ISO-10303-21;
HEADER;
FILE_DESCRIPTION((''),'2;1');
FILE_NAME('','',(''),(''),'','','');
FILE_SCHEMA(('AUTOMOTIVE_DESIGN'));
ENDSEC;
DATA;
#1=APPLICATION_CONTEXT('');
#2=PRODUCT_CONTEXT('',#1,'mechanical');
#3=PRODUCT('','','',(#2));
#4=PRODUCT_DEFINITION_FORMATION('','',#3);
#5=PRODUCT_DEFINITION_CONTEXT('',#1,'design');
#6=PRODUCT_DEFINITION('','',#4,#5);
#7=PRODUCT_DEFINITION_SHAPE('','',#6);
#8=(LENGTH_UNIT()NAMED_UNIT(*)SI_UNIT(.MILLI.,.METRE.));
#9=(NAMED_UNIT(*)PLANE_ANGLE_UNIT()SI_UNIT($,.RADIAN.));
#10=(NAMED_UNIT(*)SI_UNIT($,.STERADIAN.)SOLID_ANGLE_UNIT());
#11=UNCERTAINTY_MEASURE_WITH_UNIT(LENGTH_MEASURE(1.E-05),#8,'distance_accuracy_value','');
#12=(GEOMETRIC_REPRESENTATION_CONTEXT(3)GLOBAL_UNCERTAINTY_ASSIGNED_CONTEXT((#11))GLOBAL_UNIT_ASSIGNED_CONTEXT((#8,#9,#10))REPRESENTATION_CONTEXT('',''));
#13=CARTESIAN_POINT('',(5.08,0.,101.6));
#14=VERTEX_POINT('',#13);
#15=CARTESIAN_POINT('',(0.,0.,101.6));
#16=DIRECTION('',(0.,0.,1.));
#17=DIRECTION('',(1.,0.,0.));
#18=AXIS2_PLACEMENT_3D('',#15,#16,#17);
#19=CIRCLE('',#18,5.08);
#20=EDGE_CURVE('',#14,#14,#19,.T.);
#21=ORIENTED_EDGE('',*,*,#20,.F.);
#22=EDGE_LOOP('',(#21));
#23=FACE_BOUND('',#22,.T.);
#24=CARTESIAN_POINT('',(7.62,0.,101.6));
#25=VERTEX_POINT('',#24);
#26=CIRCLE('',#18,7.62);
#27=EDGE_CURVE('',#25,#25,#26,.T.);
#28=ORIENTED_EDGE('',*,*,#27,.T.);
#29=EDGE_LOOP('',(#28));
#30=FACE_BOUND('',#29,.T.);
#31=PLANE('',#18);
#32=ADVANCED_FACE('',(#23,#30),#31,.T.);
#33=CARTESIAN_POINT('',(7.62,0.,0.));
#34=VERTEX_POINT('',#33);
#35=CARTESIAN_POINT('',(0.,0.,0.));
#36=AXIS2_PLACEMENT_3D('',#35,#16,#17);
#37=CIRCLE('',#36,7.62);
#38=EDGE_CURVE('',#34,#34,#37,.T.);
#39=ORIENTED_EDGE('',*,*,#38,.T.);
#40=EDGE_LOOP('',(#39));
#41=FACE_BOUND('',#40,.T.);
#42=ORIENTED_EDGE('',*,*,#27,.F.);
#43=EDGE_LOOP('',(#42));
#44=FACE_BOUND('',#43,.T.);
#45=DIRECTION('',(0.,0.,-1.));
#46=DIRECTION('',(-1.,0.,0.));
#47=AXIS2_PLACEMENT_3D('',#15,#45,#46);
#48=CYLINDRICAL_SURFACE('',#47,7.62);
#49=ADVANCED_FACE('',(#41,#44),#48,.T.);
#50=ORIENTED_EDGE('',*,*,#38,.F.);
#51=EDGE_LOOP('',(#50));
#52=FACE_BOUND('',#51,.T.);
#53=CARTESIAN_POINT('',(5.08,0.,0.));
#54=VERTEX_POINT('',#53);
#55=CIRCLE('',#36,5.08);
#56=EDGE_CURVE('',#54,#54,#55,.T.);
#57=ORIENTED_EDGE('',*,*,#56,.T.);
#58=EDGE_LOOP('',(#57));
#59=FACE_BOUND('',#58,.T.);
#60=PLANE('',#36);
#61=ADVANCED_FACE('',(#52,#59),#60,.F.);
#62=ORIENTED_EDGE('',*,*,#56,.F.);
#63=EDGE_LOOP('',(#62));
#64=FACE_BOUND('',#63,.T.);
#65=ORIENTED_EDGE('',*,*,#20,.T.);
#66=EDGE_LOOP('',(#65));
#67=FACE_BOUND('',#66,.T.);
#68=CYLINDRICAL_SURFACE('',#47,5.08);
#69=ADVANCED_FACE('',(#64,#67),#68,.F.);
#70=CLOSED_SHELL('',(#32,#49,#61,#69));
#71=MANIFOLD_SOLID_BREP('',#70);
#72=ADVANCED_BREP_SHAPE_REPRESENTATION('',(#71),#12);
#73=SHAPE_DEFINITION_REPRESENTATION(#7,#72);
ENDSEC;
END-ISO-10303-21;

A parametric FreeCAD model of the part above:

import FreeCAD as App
import Part
import Sketcher
Q = App.Units.Quantity

doc = App.newDocument("Part")
params = doc.addObject("Spreadsheet::Sheet", "Params")
for row, (alias, value) in enumerate([
    ("sketch1_diameter", "0.6 in"),
    ("sketch1_diameter2", "0.4 in"),
    ("pad1_length", "4 in"),
], start=1):
    params.set(f"A{row}", alias)
    params.set(f"B{row}", "=" + value)
    params.setAlias(f"B{row}", alias)

body = doc.addObject("PartDesign::Body", "Body")

sketch1 = doc.addObject("Sketcher::SketchObject", "Sketch")
body.addObject(sketch1)
sketch1.AttachmentSupport = (doc.XY_Plane, [""])
sketch1.MapMode = "FlatFace"
sketch1.addGeometry([
    Part.Circle(App.Vector(0, 0, 0), App.Vector(0, 0, 1), 8),
    Part.Circle(App.Vector(0, 0, 0), App.Vector(0, 0, 1), 5),
], False)
sketch1.addConstraint([
    Sketcher.Constraint("Coincident", 0, 3, -1, 1),
    Sketcher.Constraint("Coincident", 1, 3, -1, 1),
    Sketcher.Constraint("Diameter", 0, Q("0.6 in")),
    Sketcher.Constraint("Diameter", 1, Q("0.4 in")),
])
sketch1.setExpression("Constraints[2]", "Params.sketch1_diameter")
sketch1.setExpression("Constraints[3]", "Params.sketch1_diameter2")
pad1 = doc.addObject("PartDesign::Pad", "Pad")
body.addObject(pad1)
pad1.Profile = sketch1
pad1.setExpression("Length", "Params.pad1_length")

doc.recompute()
